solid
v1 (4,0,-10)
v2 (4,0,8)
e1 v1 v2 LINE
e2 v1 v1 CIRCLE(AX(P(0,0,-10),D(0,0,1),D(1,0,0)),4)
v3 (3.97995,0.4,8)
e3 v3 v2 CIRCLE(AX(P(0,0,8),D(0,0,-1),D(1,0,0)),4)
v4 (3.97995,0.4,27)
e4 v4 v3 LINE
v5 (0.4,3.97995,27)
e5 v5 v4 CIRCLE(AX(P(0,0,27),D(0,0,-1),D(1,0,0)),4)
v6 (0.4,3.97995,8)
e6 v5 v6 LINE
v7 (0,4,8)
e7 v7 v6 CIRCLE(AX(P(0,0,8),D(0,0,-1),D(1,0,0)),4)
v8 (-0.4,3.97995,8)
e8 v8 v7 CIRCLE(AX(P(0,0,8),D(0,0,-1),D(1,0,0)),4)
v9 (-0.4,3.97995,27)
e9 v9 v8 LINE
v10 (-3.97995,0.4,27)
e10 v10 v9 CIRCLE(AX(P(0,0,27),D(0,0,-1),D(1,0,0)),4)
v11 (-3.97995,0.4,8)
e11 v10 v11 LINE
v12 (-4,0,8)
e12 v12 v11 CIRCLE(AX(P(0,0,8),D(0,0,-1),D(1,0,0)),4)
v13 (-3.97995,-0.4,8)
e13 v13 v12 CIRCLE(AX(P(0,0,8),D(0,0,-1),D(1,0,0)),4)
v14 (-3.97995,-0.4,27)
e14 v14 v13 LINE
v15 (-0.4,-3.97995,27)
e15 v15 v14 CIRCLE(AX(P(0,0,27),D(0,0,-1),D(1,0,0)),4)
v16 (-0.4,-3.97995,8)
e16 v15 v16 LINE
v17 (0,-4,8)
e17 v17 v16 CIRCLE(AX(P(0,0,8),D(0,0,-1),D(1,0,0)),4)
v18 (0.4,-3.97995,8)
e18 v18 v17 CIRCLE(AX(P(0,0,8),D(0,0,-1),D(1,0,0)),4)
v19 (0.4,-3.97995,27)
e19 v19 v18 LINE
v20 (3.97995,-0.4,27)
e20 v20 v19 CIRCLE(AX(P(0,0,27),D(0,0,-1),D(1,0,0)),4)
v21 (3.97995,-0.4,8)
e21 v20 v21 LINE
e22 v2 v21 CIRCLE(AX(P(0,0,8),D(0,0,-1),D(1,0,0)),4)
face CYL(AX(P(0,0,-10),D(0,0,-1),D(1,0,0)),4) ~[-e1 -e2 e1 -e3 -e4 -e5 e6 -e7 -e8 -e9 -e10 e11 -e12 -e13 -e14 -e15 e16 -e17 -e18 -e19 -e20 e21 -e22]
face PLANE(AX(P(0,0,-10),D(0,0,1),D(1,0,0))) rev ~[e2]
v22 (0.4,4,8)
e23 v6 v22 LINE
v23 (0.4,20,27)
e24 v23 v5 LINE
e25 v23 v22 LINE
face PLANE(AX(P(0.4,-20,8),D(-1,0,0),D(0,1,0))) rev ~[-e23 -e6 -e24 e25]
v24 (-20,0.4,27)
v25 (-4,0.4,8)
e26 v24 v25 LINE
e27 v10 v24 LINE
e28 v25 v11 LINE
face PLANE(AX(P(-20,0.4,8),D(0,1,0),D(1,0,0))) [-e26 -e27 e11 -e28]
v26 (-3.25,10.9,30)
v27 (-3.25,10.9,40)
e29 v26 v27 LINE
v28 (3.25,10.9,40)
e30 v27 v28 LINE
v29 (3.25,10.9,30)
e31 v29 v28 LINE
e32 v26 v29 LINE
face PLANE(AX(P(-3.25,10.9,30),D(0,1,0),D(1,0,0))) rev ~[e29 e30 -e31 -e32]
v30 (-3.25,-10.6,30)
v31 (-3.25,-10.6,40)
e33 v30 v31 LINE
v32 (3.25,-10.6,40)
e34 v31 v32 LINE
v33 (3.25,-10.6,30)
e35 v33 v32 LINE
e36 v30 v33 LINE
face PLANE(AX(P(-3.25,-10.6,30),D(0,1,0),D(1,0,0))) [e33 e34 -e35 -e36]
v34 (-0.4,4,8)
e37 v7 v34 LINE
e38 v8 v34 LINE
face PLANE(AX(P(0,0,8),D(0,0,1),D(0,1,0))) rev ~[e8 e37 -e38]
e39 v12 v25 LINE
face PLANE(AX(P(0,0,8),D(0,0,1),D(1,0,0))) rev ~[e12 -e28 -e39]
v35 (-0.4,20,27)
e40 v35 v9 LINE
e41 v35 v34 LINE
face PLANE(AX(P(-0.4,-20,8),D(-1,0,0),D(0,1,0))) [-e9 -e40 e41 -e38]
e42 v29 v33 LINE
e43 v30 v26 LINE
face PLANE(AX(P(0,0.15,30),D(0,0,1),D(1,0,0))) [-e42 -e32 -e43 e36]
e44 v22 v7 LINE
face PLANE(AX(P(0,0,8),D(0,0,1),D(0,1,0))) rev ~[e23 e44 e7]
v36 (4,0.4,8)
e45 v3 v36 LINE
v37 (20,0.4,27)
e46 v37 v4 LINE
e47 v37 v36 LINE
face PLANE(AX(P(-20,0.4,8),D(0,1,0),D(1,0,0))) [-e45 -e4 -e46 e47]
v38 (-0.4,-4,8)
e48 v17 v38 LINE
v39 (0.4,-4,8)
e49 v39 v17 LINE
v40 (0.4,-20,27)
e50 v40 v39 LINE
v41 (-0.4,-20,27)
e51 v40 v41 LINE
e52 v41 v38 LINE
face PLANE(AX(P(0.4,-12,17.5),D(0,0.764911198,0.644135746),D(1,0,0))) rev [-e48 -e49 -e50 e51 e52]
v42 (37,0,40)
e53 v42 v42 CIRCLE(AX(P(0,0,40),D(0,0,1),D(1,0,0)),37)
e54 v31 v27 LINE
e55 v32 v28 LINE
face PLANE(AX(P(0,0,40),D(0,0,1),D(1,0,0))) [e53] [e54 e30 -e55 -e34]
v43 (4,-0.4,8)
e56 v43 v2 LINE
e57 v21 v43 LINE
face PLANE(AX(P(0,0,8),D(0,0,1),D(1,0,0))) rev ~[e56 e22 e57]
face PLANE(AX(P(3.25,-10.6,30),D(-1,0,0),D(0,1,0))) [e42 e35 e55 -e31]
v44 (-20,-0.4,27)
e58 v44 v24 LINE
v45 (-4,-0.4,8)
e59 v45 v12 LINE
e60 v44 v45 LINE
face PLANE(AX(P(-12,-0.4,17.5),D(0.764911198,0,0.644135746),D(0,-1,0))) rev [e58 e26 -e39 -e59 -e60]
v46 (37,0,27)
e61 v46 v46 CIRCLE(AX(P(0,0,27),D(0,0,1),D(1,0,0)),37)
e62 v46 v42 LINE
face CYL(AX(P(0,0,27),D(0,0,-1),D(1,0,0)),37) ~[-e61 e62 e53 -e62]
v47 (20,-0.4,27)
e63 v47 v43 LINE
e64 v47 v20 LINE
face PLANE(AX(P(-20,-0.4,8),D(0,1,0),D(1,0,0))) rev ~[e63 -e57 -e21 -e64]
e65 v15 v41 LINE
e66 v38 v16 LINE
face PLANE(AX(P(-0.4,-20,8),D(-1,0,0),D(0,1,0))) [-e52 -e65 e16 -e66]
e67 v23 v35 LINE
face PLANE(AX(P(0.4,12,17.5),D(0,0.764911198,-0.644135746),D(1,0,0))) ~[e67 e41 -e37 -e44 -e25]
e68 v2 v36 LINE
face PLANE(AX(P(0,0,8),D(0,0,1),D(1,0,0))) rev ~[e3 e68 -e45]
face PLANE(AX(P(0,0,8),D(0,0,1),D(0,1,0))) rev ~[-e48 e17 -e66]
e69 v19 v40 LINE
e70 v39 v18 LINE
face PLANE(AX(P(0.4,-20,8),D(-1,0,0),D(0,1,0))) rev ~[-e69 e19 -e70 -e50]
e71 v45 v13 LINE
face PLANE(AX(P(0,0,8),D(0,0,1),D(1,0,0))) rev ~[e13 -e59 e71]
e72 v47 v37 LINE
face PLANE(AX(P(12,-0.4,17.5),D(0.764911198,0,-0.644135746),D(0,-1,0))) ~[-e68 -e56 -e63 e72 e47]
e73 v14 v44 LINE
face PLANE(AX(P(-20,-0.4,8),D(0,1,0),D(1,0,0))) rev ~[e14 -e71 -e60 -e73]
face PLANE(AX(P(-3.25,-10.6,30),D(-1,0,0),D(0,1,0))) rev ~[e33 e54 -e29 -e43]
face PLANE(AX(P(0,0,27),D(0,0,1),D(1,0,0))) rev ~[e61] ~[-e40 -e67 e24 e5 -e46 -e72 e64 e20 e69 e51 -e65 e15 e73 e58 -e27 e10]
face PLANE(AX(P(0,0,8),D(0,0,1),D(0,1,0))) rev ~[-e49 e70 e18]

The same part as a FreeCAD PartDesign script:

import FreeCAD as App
import Part
import Sketcher
from FreeCAD import Vector


def edges_at(feature, points):
    """Names of the edges that pass closest to the given points."""
    edges = feature.Shape.Edges
    near = lambda p: min(range(len(edges)), key=lambda i: edges[i].distToShape(Part.Vertex(*p))[0])
    return sorted({f"Edge{near(p) + 1}" for p in points})

doc = App.newDocument("Part")
params = doc.addObject("Spreadsheet::Sheet", "Params")
for row, (alias, value) in enumerate([
    ("sketch1_diameter", "8 mm"),
    ("pad1_length", "40 mm"),
    ("sketch2_width", "40 mm"),
    ("sketch2_height", "0.8 mm"),
    ("pad2_length", "20 mm"),
    ("chamfer_size", "19 mm"),
    ("chamfer_size2", "16 mm"),
    ("chamfer2_size", "19 mm"),
    ("chamfer2_size2", "16 mm"),
    ("sketch3_width", "40 mm"),
    ("sketch3_height", "0.8 mm"),
    ("pad3_length", "20 mm"),
    ("chamfer3_size", "19 mm"),
    ("chamfer3_size2", "16 mm"),
    ("chamfer4_size", "19 mm"),
    ("chamfer4_size2", "16 mm"),
    ("sketch4_width", "6.5 mm"),
    ("sketch4_height", "21.5 mm"),
    ("pad4_length", "10 mm"),
    ("sketch5_diameter", "74 mm"),
    ("pad5_length", "13 mm"),
], start=1):
    params.set(f"A{row}", alias)
    params.set(f"B{row}", "=" + value)
    params.setAlias(f"B{row}", alias)

body = doc.addObject("PartDesign::Body", "Body")

# Sketch on XY plane
sketch1 = body.newObject("Sketcher::SketchObject", "Sketch")
sketch1.AttachmentSupport = (doc.getObject("XY_Plane"), [""])
sketch1.MapMode = "FlatFace"
sketch1.AttachmentOffset = App.Placement(Vector(0, 0, -10), App.Rotation())
sketch1.addGeometry(Part.Circle(Vector(0, 0, 0), Vector(0, 0, 1), 4), False)
sketch1.addConstraint([
    Sketcher.Constraint("Coincident", 0, 3, -1, 1),
    Sketcher.Constraint("Diameter", 0, 8.0),
])
sketch1.setExpression("Constraints[1]", "Params.sketch1_diameter")
pad1 = body.newObject("PartDesign::Pad", "Pad")
pad1.Profile = sketch1
pad1.setExpression("Length", "Params.pad1_length")
body2 = doc.addObject("PartDesign::Body", "Body001")

# Sketch on XY plane
sketch2 = body2.newObject("Sketcher::SketchObject", "Sketch001")
sketch2.AttachmentSupport = (doc.getObject("XY_Plane001"), [""])
sketch2.MapMode = "FlatFace"
sketch2.AttachmentOffset = App.Placement(Vector(0, 0, 8), App.Rotation())
sketch2.addGeometry([
    Part.LineSegment(Vector(-20, 0.4, 0), Vector(-20, -0.4, 0)),
    Part.LineSegment(Vector(-20, -0.4, 0), Vector(20, -0.4, 0)),
    Part.LineSegment(Vector(20, -0.4, 0), Vector(20, 0.4, 0)),
    Part.LineSegment(Vector(20, 0.4, 0), Vector(-20, 0.4, 0)),
], False)
sketch2.addConstraint([
    Sketcher.Constraint("Coincident", 0, 2, 1, 1),
    Sketcher.Constraint("Coincident", 1, 2, 2, 1),
    Sketcher.Constraint("Coincident", 2, 2, 3, 1),
    Sketcher.Constraint("Coincident", 3, 2, 0, 1),
    Sketcher.Constraint("Vertical", 0),
    Sketcher.Constraint("Horizontal", 1),
    Sketcher.Constraint("Vertical", 2),
    Sketcher.Constraint("Horizontal", 3),
    Sketcher.Constraint("Symmetric", 0, 2, 2, 2, -1, 1),
    Sketcher.Constraint("DistanceX", 1, 1, 1, 2, 40.0),
    Sketcher.Constraint("DistanceY", 0, 2, 0, 1, 0.8),
])
sketch2.setExpression("Constraints[9]", "Params.sketch2_width")
sketch2.setExpression("Constraints[10]", "Params.sketch2_height")
pad2 = body2.newObject("PartDesign::Pad", "Pad001")
pad2.Profile = sketch2
pad2.setExpression("Length", "Params.pad2_length")
doc.recompute()

chamfer = body2.newObject("PartDesign::Chamfer", "Chamfer")
chamfer.Base = (pad2, edges_at(pad2, [(20, 0, 8)]))
chamfer.ChamferType = "Two distances"
chamfer.setExpression("Size", "Params.chamfer_size")
chamfer.setExpression("Size2", "Params.chamfer_size2")
doc.recompute()

chamfer2 = body2.newObject("PartDesign::Chamfer", "Chamfer001")
chamfer2.Base = (chamfer, edges_at(chamfer, [(-20, 0, 8)]))
chamfer2.ChamferType = "Two distances"
chamfer2.setExpression("Size", "Params.chamfer2_size")
chamfer2.setExpression("Size2", "Params.chamfer2_size2")
chamfer2.FlipDirection = True
body3 = doc.addObject("PartDesign::Body", "Body002")

# Sketch on XY plane
sketch3 = body3.newObject("Sketcher::SketchObject", "Sketch002")
sketch3.AttachmentSupport = (doc.getObject("XY_Plane002"), [""])
sketch3.MapMode = "FlatFace"
sketch3.AttachmentOffset = App.Placement(Vector(0, 0, 8), App.Rotation())
sketch3.addGeometry([
    Part.LineSegment(Vector(-20, 0.4, 0), Vector(-20, -0.4, 0)),
    Part.LineSegment(Vector(-20, -0.4, 0), Vector(20, -0.4, 0)),
    Part.LineSegment(Vector(20, -0.4, 0), Vector(20, 0.4, 0)),
    Part.LineSegment(Vector(20, 0.4, 0), Vector(-20, 0.4, 0)),
], False)
sketch3.addConstraint([
    Sketcher.Constraint("Coincident", 0, 2, 1, 1),
    Sketcher.Constraint("Coincident", 1, 2, 2, 1),
    Sketcher.Constraint("Coincident", 2, 2, 3, 1),
    Sketcher.Constraint("Coincident", 3, 2, 0, 1),
    Sketcher.Constraint("Vertical", 0),
    Sketcher.Constraint("Horizontal", 1),
    Sketcher.Constraint("Vertical", 2),
    Sketcher.Constraint("Horizontal", 3),
    Sketcher.Constraint("Symmetric", 0, 2, 2, 2, -1, 1),
    Sketcher.Constraint("DistanceX", 1, 1, 1, 2, 40.0),
    Sketcher.Constraint("DistanceY", 0, 2, 0, 1, 0.8),
])
sketch3.setExpression("Constraints[9]", "Params.sketch3_width")
sketch3.setExpression("Constraints[10]", "Params.sketch3_height")
pad3 = body3.newObject("PartDesign::Pad", "Pad002")
pad3.Profile = sketch3
pad3.setExpression("Length", "Params.pad3_length")
doc.recompute()

chamfer3 = body3.newObject("PartDesign::Chamfer", "Chamfer002")
chamfer3.Base = (pad3, edges_at(pad3, [(20, 0, 8)]))
chamfer3.ChamferType = "Two distances"
chamfer3.setExpression("Size", "Params.chamfer3_size")
chamfer3.setExpression("Size2", "Params.chamfer3_size2")
doc.recompute()

chamfer4 = body3.newObject("PartDesign::Chamfer", "Chamfer003")
chamfer4.Base = (chamfer3, edges_at(chamfer3, [(-20, 0, 8)]))
chamfer4.ChamferType = "Two distances"
chamfer4.setExpression("Size", "Params.chamfer4_size")
chamfer4.setExpression("Size2", "Params.chamfer4_size2")
chamfer4.FlipDirection = True
body4 = doc.addObject("PartDesign::Body", "Body003")
doc.recompute()

body3.Placement = App.Placement(Vector(0, 0, 0), App.Rotation(Vector(0, 0, 1), 90))
boolean = body4.newObject("PartDesign::Boolean", "Boolean")
boolean.Type = "Fuse"
boolean.addObjects([body3])
body5 = doc.addObject("PartDesign::Body", "Body004")

# Sketch on XY plane
sketch4 = body5.newObject("Sketcher::SketchObject", "Sketch003")
sketch4.AttachmentSupport = (doc.getObject("XY_Plane004"), [""])
sketch4.MapMode = "FlatFace"
sketch4.AttachmentOffset = App.Placement(Vector(0, 0, 30), App.Rotation())
sketch4.addGeometry([
    Part.LineSegment(Vector(-3.25, 10.9, 0), Vector(-3.25, -10.6, 0)),
    Part.LineSegment(Vector(-3.25, -10.6, 0), Vector(3.25, -10.6, 0)),
    Part.LineSegment(Vector(3.25, -10.6, 0), Vector(3.25, 10.9, 0)),
    Part.LineSegment(Vector(3.25, 10.9, 0), Vector(-3.25, 10.9, 0)),
], False)
sketch4.addConstraint([
    Sketcher.Constraint("Coincident", 0, 2, 1, 1),
    Sketcher.Constraint("Coincident", 1, 2, 2, 1),
    Sketcher.Constraint("Coincident", 2, 2, 3, 1),
    Sketcher.Constraint("Coincident", 3, 2, 0, 1),
    Sketcher.Constraint("Vertical", 0),
    Sketcher.Constraint("Horizontal", 1),
    Sketcher.Constraint("Vertical", 2),
    Sketcher.Constraint("Horizontal", 3),
    Sketcher.Constraint("DistanceX", 1, 1, 1, 2, 6.5),
    Sketcher.Constraint("DistanceY", 0, 2, 0, 1, 21.5),
    Sketcher.Constraint("DistanceY", 0, 2, -1, 1, 10.6),
    Sketcher.Constraint("DistanceX", 0, 2, -1, 1, 3.25),
])
sketch4.setExpression("Constraints[8]", "Params.sketch4_width")
sketch4.setExpression("Constraints[9]", "Params.sketch4_height")
pad4 = body5.newObject("PartDesign::Pad", "Pad003")
pad4.Profile = sketch4
pad4.setExpression("Length", "Params.pad4_length")
body6 = doc.addObject("PartDesign::Body", "Body005")

# Sketch on XY plane
sketch5 = body6.newObject("Sketcher::SketchObject", "Sketch004")
sketch5.AttachmentSupport = (doc.getObject("XY_Plane005"), [""])
sketch5.MapMode = "FlatFace"
sketch5.AttachmentOffset = App.Placement(Vector(0, 0, 27), App.Rotation())
sketch5.addGeometry(Part.Circle(Vector(0, 0, 0), Vector(0, 0, 1), 37), False)
sketch5.addConstraint([
    Sketcher.Constraint("Coincident", 0, 3, -1, 1),
    Sketcher.Constraint("Diameter", 0, 74.0),
])
sketch5.setExpression("Constraints[1]", "Params.sketch5_diameter")
pad5 = body6.newObject("PartDesign::Pad", "Pad004")
pad5.Profile = sketch5
pad5.setExpression("Length", "Params.pad5_length")
doc.recompute()

boolean2 = body6.newObject("PartDesign::Boolean", "Boolean001")
boolean2.Type = "Cut"
boolean2.addObjects([body5])
doc.recompute()

boolean3 = body6.newObject("PartDesign::Boolean", "Boolean002")
boolean3.Type = "Fuse"
boolean3.addObjects([body])
doc.recompute()

boolean4 = body6.newObject("PartDesign::Boolean", "Boolean003")
boolean4.Type = "Fuse"
boolean4.addObjects([body2])
doc.recompute()

boolean5 = body6.newObject("PartDesign::Boolean", "Boolean004")
boolean5.Type = "Fuse"
boolean5.addObjects([body4])

doc.recompute()
